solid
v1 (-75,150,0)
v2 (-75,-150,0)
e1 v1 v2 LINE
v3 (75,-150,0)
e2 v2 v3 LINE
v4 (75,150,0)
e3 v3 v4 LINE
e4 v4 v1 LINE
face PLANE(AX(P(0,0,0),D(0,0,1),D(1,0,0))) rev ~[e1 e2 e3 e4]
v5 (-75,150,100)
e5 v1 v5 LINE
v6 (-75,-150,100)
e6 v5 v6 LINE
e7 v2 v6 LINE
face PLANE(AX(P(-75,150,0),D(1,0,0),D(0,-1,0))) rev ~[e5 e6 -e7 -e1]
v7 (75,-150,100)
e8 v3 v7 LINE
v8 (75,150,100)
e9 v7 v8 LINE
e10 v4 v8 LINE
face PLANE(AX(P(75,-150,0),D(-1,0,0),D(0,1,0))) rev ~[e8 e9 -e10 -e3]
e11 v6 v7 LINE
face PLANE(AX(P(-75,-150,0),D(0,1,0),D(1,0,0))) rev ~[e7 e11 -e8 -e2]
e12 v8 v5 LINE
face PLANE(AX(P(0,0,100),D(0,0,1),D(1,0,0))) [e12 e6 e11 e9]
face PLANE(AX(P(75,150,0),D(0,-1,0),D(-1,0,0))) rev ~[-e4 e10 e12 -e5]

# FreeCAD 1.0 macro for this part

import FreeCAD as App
import Part
import Sketcher
from FreeCAD import Vector
Q = App.Units.Quantity

doc = App.newDocument("Part")
body = doc.addObject("PartDesign::Body", "Body")

# Sketch on XY plane
sketch1 = body.newObject("Sketcher::SketchObject", "Sketch")
sketch1.AttachmentSupport = (doc.getObject("XY_Plane"), [""])
sketch1.MapMode = "FlatFace"
sketch1.addGeometry([
    Part.LineSegment(Vector(75, 150, 0), Vector(-75, 150, 0)),
    Part.LineSegment(Vector(-75, 150, 0), Vector(-75, -150, 0)),
    Part.LineSegment(Vector(-75, -150, 0), Vector(75, -150, 0)),
    Part.LineSegment(Vector(75, -150, 0), Vector(75, 150, 0)),
], False)
sketch1.addConstraint([
    Sketcher.Constraint("Coincident", 0, 2, 1, 1),
    Sketcher.Constraint("Coincident", 1, 2, 2, 1),
    Sketcher.Constraint("Coincident", 2, 2, 3, 1),
    Sketcher.Constraint("Coincident", 3, 2, 0, 1),
    Sketcher.Constraint("Horizontal", 0),
    Sketcher.Constraint("Vertical", 1),
    Sketcher.Constraint("Horizontal", 2),
    Sketcher.Constraint("Vertical", 3),
    Sketcher.Constraint("Symmetric", 0, 2, 2, 2, -1, 1),
    Sketcher.Constraint("DistanceX", 0, 2, 0, 1, Q("150 mm")),
    Sketcher.Constraint("DistanceY", 1, 2, 1, 1, Q("300 mm")),
])
pad1 = body.newObject("PartDesign::Pad", "Pad")
pad1.Profile = sketch1
pad1.Length = 100

doc.recompute()
